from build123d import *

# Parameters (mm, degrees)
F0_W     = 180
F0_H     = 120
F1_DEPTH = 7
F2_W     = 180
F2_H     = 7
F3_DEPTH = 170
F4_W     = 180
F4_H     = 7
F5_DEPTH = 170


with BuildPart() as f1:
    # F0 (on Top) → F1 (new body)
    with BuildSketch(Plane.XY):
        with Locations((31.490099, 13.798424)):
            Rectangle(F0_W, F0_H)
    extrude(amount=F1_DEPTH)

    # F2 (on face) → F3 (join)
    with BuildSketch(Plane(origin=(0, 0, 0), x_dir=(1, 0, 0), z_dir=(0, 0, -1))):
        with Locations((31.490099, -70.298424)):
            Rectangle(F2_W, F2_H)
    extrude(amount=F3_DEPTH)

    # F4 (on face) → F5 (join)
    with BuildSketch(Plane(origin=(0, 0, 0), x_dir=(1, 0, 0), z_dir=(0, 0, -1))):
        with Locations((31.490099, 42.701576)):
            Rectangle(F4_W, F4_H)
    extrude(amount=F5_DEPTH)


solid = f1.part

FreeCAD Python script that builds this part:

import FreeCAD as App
import Part
import Sketcher
Q = App.Units.Quantity

doc = App.newDocument("Part")
params = doc.addObject("Spreadsheet::Sheet", "Params")
for row, (alias, value) in enumerate([
    ("sketch1_width", "180 mm"),
    ("sketch1_height", "120 mm"),
    ("pad1_length", "7 mm"),
    ("sketch2_width", "180 mm"),
    ("sketch2_height", "7 mm"),
    ("pad2_length", "170 mm"),
    ("sketch3_width", "180 mm"),
    ("sketch3_height", "7 mm"),
    ("pad3_length", "170 mm"),
], start=1):
    params.set(f"A{row}", alias)
    params.set(f"B{row}", "=" + value)
    params.setAlias(f"B{row}", alias)

body = doc.addObject("PartDesign::Body", "Body")

# Sketch on XY plane
sketch1 = doc.addObject("Sketcher::SketchObject", "Sketch")
body.addObject(sketch1)
sketch1.AttachmentSupport = (doc.XY_Plane, [""])
sketch1.MapMode = "FlatFace"
sketch1.addGeometry([
    Part.LineSegment(App.Vector(-59, 74, 0), App.Vector(-59, -46, 0)),
    Part.LineSegment(App.Vector(-59, -46, 0), App.Vector(121, -46, 0)),
    Part.LineSegment(App.Vector(121, -46, 0), App.Vector(121, 74, 0)),
    Part.LineSegment(App.Vector(121, 74, 0), App.Vector(-59, 74, 0)),
], False)
sketch1.addConstraint([
    Sketcher.Constraint("Coincident", 0, 2, 1, 1),
    Sketcher.Constraint("Coincident", 1, 2, 2, 1),
    Sketcher.Constraint("Coincident", 2, 2, 3, 1),
    Sketcher.Constraint("Coincident", 3, 2, 0, 1),
    Sketcher.Constraint("Vertical", 0),
    Sketcher.Constraint("Horizontal", 1),
    Sketcher.Constraint("Vertical", 2),
    Sketcher.Constraint("Horizontal", 3),
    Sketcher.Constraint("DistanceX", 1, 1, 1, 2, Q("180 mm")),
    Sketcher.Constraint("DistanceY", 0, 2, 0, 1, Q("120 mm")),
    Sketcher.Constraint("DistanceX", 0, 2, -1, 1, Q("58.509901 mm")),
    Sketcher.Constraint("DistanceY", 0, 2, -1, 1, Q("46.201576 mm")),
])
sketch1.setExpression("Constraints[8]", "Params.sketch1_width")
sketch1.setExpression("Constraints[9]", "Params.sketch1_height")
pad1 = doc.addObject("PartDesign::Pad", "Pad")
body.addObject(pad1)
pad1.Profile = sketch1
pad1.setExpression("Length", "Params.pad1_length")

# Sketch on XY plane
sketch2 = doc.addObject("Sketcher::SketchObject", "Sketch001")
body.addObject(sketch2)
sketch2.AttachmentSupport = (doc.XY_Plane, [""])
sketch2.MapMode = "FlatFace"
sketch2.addGeometry([
    Part.LineSegment(App.Vector(-59, 67, 0), App.Vector(-59, 74, 0)),
    Part.LineSegment(App.Vector(-59, 74, 0), App.Vector(121, 74, 0)),
    Part.LineSegment(App.Vector(121, 74, 0), App.Vector(121, 67, 0)),
    Part.LineSegment(App.Vector(121, 67, 0), App.Vector(-59, 67, 0)),
], False)
sketch2.addConstraint([
    Sketcher.Constraint("Coincident", 0, 2, 1, 1),
    Sketcher.Constraint("Coincident", 1, 2, 2, 1),
    Sketcher.Constraint("Coincident", 2, 2, 3, 1),
    Sketcher.Constraint("Coincident", 3, 2, 0, 1),
    Sketcher.Constraint("Vertical", 0),
    Sketcher.Constraint("Horizontal", 1),
    Sketcher.Constraint("Vertical", 2),
    Sketcher.Constraint("Horizontal", 3),
    Sketcher.Constraint("DistanceX", 1, 1, 1, 2, Q("180 mm")),
    Sketcher.Constraint("DistanceY", 0, 1, 0, 2, Q("7 mm")),
    Sketcher.Constraint("DistanceX", 0, 2, -1, 1, Q("58.509901 mm")),
    Sketcher.Constraint("DistanceY", -1, 1, 0, 2, Q("73.798424 mm")),
])
sketch2.setExpression("Constraints[8]", "Params.sketch2_width")
sketch2.setExpression("Constraints[9]", "Params.sketch2_height")
pad2 = doc.addObject("PartDesign::Pad", "Pad001")
body.addObject(pad2)
pad2.Profile = sketch2
pad2.setExpression("Length", "Params.pad2_length")
pad2.Reversed = True

# Sketch on XY plane
sketch3 = doc.addObject("Sketcher::SketchObject", "Sketch002")
body.addObject(sketch3)
sketch3.AttachmentSupport = (doc.XY_Plane, [""])
sketch3.MapMode = "FlatFace"
sketch3.addGeometry([
    Part.LineSegment(App.Vector(-59, -46, 0), App.Vector(-59, -39, 0)),
    Part.LineSegment(App.Vector(-59, -39, 0), App.Vector(121, -39, 0)),
    Part.LineSegment(App.Vector(121, -39, 0), App.Vector(121, -46, 0)),
    Part.LineSegment(App.Vector(121, -46, 0), App.Vector(-59, -46, 0)),
], False)
sketch3.addConstraint([
    Sketcher.Constraint("Coincident", 0, 2, 1, 1),
    Sketcher.Constraint("Coincident", 1, 2, 2, 1),
    Sketcher.Constraint("Coincident", 2, 2, 3, 1),
    Sketcher.Constraint("Coincident", 3, 2, 0, 1),
    Sketcher.Constraint("Vertical", 0),
    Sketcher.Constraint("Horizontal", 1),
    Sketcher.Constraint("Vertical", 2),
    Sketcher.Constraint("Horizontal", 3),
    Sketcher.Constraint("DistanceX", 1, 1, 1, 2, Q("180 mm")),
    Sketcher.Constraint("DistanceY", 0, 1, 0, 2, Q("7 mm")),
    Sketcher.Constraint("DistanceX", 0, 2, -1, 1, Q("58.509901 mm")),
    Sketcher.Constraint("DistanceY", 0, 2, -1, 1, Q("39.201576 mm")),
])
sketch3.setExpression("Constraints[8]", "Params.sketch3_width")
sketch3.setExpression("Constraints[9]", "Params.sketch3_height")
pad3 = doc.addObject("PartDesign::Pad", "Pad002")
body.addObject(pad3)
pad3.Profile = sketch3
pad3.setExpression("Length", "Params.pad3_length")
pad3.Reversed = True

doc.recompute()
